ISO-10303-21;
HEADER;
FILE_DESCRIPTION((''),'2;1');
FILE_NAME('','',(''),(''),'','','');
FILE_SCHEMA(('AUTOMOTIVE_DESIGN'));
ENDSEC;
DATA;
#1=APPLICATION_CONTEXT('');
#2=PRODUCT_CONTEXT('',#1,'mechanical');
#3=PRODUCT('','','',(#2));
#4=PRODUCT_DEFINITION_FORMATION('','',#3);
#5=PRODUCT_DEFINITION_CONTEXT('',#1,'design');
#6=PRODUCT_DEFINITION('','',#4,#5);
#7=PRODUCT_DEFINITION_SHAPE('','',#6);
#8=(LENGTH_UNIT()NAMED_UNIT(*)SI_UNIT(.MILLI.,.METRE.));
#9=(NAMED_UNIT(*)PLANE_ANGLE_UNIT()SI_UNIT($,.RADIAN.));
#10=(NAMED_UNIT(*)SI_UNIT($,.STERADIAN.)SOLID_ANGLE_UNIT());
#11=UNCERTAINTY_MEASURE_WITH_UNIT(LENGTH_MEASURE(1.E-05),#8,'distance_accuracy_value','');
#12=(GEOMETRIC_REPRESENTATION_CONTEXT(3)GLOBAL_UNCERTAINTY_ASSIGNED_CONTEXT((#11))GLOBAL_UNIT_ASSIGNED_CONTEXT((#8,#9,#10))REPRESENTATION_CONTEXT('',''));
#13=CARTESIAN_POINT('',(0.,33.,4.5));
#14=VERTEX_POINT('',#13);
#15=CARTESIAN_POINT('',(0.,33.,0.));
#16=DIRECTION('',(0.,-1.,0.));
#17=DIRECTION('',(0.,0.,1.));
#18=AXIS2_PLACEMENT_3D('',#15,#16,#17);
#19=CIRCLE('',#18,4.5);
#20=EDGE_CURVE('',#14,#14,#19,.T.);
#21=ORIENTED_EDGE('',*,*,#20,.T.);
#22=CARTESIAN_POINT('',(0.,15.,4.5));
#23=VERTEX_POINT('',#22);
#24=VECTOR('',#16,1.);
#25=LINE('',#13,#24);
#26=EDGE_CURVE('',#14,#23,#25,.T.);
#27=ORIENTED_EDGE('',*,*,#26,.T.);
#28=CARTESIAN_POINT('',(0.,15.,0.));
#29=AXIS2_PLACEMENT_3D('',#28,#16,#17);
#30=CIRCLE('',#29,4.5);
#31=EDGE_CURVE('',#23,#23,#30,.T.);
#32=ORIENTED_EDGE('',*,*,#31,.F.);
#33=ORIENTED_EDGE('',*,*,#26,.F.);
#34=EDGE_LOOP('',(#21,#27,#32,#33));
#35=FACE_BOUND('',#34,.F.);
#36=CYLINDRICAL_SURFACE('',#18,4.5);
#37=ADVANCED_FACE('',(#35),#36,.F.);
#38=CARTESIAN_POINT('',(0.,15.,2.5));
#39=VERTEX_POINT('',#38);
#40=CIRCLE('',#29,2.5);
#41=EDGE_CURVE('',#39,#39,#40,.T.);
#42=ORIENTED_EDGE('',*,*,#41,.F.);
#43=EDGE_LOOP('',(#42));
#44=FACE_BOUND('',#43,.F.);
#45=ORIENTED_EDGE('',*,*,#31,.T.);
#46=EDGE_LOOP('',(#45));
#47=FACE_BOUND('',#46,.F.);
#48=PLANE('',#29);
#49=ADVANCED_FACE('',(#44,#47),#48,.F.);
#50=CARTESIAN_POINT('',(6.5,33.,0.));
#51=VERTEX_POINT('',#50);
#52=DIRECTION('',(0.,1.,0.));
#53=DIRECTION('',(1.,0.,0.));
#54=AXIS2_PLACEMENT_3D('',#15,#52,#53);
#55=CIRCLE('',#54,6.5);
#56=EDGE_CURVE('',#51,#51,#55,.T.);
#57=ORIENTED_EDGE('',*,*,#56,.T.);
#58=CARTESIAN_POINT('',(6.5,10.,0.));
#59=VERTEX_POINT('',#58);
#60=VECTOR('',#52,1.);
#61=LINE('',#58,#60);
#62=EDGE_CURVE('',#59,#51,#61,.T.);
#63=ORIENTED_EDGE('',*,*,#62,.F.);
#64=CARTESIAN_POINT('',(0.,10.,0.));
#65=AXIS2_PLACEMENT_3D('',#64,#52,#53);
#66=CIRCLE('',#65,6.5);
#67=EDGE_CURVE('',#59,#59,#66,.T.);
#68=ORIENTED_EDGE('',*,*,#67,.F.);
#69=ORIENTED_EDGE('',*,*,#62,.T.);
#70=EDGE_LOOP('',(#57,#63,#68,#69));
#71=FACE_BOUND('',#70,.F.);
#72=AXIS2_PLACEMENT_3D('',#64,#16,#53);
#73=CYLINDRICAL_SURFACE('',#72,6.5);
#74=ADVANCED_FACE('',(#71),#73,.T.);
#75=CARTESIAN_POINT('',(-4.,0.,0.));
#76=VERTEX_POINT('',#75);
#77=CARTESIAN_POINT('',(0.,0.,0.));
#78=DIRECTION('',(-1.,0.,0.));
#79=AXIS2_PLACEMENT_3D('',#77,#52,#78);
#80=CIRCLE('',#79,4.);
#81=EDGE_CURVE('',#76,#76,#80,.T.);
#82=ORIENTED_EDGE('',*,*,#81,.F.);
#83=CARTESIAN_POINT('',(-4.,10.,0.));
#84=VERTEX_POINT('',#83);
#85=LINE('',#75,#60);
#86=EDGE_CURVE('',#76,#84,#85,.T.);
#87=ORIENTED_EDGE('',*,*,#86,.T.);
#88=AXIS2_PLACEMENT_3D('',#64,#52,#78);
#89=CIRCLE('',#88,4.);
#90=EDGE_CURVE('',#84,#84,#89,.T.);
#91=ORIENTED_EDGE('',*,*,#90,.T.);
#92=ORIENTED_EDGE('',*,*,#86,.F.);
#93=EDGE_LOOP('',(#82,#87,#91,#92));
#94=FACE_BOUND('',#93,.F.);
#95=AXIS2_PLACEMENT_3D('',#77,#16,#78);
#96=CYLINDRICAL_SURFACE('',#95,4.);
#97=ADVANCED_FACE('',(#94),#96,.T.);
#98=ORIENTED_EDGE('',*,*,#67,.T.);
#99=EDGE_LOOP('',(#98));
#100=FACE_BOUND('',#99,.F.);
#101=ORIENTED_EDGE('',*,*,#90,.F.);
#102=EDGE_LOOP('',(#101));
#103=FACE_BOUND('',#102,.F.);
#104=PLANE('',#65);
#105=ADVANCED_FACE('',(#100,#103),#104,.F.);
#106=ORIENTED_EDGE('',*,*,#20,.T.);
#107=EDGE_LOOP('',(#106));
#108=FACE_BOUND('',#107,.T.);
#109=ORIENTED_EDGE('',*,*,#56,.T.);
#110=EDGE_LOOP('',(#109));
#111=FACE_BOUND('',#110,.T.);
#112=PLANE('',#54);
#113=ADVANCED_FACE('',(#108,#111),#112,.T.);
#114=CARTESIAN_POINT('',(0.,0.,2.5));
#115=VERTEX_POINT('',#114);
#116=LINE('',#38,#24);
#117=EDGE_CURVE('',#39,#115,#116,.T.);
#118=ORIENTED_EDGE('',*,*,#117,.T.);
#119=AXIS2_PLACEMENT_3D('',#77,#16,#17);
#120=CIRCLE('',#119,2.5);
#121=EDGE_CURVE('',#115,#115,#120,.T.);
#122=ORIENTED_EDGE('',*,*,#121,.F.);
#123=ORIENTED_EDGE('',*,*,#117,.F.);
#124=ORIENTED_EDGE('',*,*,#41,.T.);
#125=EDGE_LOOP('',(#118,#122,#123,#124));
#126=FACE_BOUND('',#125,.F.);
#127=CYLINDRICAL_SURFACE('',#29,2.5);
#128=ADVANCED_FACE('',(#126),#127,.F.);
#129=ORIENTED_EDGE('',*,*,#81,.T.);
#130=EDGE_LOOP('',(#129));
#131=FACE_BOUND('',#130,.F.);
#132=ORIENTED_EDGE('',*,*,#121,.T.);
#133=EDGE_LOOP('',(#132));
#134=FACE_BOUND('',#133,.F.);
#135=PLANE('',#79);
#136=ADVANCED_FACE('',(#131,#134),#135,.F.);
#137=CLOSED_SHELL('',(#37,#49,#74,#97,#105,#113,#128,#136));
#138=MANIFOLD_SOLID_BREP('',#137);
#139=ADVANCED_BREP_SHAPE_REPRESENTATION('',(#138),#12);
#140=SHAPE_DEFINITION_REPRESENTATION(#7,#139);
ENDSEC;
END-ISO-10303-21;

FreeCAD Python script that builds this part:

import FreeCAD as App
import Part
import Sketcher
from FreeCAD import Vector

doc = App.newDocument("Part")
body = doc.addObject("PartDesign::Body", "Body")

sketch1 = body.newObject("Sketcher::SketchObject", "Sketch")
sketch1.AttachmentSupport = (doc.getObject("XZ_Plane"), [""])
sketch1.MapMode = "FlatFace"
sketch1.addGeometry(Part.Circle(Vector(0, 0, 0), Vector(0, 0, 1), 4), False)
sketch1.addConstraint(Sketcher.Constraint("Coincident", 0, 3, -1, 1))
sketch1.addConstraint(Sketcher.Constraint("Diameter", 0, 8.0))
pad1 = body.newObject("PartDesign::Pad", "Pad")
pad1.Profile = sketch1
pad1.Length = 10
pad1.Reversed = True

sketch2 = body.newObject("Sketcher::SketchObject", "Sketch001")
sketch2.AttachmentSupport = (doc.getObject("XZ_Plane"), [""])
sketch2.MapMode = "FlatFace"
sketch2.AttachmentOffset = App.Placement(Vector(0, 0, -10), App.Rotation())
sketch2.addGeometry(Part.Circle(Vector(0, 0, 0), Vector(0, 0, 1), 6), False)
sketch2.addConstraint(Sketcher.Constraint("Coincident", 0, 3, -1, 1))
sketch2.addConstraint(Sketcher.Constraint("Diameter", 0, 13.0))
pad2 = body.newObject("PartDesign::Pad", "Pad001")
pad2.Profile = sketch2
pad2.Length = 23
pad2.Reversed = True

sketch3 = body.newObject("Sketcher::SketchObject", "Sketch002")
sketch3.AttachmentSupport = (doc.getObject("XZ_Plane"), [""])
sketch3.MapMode = "FlatFace"
sketch3.AttachmentOffset = App.Placement(Vector(0, 0, -33), App.Rotation())
sketch3.addGeometry(Part.Circle(Vector(0, 0, 0), Vector(0, 0, 1), 2.5), False)
sketch3.addConstraint(Sketcher.Constraint("Coincident", 0, 3, -1, 1))
sketch3.addConstraint(Sketcher.Constraint("Diameter", 0, 5.0))
doc.recompute()
hole = body.newObject("PartDesign::Hole", "Hole")
hole.Profile = sketch3
hole.ThreadType = "None"
hole.Diameter = 5
hole.DepthType = "Dimension"
hole.Depth = 40
hole.DrillPoint = "Angled"
hole.DrillPointAngle = 118
hole.HoleCutType = "Counterbore"
hole.HoleCutDiameter = 9
hole.HoleCutDepth = 18
hole.Reversed = True

doc.recompute()
